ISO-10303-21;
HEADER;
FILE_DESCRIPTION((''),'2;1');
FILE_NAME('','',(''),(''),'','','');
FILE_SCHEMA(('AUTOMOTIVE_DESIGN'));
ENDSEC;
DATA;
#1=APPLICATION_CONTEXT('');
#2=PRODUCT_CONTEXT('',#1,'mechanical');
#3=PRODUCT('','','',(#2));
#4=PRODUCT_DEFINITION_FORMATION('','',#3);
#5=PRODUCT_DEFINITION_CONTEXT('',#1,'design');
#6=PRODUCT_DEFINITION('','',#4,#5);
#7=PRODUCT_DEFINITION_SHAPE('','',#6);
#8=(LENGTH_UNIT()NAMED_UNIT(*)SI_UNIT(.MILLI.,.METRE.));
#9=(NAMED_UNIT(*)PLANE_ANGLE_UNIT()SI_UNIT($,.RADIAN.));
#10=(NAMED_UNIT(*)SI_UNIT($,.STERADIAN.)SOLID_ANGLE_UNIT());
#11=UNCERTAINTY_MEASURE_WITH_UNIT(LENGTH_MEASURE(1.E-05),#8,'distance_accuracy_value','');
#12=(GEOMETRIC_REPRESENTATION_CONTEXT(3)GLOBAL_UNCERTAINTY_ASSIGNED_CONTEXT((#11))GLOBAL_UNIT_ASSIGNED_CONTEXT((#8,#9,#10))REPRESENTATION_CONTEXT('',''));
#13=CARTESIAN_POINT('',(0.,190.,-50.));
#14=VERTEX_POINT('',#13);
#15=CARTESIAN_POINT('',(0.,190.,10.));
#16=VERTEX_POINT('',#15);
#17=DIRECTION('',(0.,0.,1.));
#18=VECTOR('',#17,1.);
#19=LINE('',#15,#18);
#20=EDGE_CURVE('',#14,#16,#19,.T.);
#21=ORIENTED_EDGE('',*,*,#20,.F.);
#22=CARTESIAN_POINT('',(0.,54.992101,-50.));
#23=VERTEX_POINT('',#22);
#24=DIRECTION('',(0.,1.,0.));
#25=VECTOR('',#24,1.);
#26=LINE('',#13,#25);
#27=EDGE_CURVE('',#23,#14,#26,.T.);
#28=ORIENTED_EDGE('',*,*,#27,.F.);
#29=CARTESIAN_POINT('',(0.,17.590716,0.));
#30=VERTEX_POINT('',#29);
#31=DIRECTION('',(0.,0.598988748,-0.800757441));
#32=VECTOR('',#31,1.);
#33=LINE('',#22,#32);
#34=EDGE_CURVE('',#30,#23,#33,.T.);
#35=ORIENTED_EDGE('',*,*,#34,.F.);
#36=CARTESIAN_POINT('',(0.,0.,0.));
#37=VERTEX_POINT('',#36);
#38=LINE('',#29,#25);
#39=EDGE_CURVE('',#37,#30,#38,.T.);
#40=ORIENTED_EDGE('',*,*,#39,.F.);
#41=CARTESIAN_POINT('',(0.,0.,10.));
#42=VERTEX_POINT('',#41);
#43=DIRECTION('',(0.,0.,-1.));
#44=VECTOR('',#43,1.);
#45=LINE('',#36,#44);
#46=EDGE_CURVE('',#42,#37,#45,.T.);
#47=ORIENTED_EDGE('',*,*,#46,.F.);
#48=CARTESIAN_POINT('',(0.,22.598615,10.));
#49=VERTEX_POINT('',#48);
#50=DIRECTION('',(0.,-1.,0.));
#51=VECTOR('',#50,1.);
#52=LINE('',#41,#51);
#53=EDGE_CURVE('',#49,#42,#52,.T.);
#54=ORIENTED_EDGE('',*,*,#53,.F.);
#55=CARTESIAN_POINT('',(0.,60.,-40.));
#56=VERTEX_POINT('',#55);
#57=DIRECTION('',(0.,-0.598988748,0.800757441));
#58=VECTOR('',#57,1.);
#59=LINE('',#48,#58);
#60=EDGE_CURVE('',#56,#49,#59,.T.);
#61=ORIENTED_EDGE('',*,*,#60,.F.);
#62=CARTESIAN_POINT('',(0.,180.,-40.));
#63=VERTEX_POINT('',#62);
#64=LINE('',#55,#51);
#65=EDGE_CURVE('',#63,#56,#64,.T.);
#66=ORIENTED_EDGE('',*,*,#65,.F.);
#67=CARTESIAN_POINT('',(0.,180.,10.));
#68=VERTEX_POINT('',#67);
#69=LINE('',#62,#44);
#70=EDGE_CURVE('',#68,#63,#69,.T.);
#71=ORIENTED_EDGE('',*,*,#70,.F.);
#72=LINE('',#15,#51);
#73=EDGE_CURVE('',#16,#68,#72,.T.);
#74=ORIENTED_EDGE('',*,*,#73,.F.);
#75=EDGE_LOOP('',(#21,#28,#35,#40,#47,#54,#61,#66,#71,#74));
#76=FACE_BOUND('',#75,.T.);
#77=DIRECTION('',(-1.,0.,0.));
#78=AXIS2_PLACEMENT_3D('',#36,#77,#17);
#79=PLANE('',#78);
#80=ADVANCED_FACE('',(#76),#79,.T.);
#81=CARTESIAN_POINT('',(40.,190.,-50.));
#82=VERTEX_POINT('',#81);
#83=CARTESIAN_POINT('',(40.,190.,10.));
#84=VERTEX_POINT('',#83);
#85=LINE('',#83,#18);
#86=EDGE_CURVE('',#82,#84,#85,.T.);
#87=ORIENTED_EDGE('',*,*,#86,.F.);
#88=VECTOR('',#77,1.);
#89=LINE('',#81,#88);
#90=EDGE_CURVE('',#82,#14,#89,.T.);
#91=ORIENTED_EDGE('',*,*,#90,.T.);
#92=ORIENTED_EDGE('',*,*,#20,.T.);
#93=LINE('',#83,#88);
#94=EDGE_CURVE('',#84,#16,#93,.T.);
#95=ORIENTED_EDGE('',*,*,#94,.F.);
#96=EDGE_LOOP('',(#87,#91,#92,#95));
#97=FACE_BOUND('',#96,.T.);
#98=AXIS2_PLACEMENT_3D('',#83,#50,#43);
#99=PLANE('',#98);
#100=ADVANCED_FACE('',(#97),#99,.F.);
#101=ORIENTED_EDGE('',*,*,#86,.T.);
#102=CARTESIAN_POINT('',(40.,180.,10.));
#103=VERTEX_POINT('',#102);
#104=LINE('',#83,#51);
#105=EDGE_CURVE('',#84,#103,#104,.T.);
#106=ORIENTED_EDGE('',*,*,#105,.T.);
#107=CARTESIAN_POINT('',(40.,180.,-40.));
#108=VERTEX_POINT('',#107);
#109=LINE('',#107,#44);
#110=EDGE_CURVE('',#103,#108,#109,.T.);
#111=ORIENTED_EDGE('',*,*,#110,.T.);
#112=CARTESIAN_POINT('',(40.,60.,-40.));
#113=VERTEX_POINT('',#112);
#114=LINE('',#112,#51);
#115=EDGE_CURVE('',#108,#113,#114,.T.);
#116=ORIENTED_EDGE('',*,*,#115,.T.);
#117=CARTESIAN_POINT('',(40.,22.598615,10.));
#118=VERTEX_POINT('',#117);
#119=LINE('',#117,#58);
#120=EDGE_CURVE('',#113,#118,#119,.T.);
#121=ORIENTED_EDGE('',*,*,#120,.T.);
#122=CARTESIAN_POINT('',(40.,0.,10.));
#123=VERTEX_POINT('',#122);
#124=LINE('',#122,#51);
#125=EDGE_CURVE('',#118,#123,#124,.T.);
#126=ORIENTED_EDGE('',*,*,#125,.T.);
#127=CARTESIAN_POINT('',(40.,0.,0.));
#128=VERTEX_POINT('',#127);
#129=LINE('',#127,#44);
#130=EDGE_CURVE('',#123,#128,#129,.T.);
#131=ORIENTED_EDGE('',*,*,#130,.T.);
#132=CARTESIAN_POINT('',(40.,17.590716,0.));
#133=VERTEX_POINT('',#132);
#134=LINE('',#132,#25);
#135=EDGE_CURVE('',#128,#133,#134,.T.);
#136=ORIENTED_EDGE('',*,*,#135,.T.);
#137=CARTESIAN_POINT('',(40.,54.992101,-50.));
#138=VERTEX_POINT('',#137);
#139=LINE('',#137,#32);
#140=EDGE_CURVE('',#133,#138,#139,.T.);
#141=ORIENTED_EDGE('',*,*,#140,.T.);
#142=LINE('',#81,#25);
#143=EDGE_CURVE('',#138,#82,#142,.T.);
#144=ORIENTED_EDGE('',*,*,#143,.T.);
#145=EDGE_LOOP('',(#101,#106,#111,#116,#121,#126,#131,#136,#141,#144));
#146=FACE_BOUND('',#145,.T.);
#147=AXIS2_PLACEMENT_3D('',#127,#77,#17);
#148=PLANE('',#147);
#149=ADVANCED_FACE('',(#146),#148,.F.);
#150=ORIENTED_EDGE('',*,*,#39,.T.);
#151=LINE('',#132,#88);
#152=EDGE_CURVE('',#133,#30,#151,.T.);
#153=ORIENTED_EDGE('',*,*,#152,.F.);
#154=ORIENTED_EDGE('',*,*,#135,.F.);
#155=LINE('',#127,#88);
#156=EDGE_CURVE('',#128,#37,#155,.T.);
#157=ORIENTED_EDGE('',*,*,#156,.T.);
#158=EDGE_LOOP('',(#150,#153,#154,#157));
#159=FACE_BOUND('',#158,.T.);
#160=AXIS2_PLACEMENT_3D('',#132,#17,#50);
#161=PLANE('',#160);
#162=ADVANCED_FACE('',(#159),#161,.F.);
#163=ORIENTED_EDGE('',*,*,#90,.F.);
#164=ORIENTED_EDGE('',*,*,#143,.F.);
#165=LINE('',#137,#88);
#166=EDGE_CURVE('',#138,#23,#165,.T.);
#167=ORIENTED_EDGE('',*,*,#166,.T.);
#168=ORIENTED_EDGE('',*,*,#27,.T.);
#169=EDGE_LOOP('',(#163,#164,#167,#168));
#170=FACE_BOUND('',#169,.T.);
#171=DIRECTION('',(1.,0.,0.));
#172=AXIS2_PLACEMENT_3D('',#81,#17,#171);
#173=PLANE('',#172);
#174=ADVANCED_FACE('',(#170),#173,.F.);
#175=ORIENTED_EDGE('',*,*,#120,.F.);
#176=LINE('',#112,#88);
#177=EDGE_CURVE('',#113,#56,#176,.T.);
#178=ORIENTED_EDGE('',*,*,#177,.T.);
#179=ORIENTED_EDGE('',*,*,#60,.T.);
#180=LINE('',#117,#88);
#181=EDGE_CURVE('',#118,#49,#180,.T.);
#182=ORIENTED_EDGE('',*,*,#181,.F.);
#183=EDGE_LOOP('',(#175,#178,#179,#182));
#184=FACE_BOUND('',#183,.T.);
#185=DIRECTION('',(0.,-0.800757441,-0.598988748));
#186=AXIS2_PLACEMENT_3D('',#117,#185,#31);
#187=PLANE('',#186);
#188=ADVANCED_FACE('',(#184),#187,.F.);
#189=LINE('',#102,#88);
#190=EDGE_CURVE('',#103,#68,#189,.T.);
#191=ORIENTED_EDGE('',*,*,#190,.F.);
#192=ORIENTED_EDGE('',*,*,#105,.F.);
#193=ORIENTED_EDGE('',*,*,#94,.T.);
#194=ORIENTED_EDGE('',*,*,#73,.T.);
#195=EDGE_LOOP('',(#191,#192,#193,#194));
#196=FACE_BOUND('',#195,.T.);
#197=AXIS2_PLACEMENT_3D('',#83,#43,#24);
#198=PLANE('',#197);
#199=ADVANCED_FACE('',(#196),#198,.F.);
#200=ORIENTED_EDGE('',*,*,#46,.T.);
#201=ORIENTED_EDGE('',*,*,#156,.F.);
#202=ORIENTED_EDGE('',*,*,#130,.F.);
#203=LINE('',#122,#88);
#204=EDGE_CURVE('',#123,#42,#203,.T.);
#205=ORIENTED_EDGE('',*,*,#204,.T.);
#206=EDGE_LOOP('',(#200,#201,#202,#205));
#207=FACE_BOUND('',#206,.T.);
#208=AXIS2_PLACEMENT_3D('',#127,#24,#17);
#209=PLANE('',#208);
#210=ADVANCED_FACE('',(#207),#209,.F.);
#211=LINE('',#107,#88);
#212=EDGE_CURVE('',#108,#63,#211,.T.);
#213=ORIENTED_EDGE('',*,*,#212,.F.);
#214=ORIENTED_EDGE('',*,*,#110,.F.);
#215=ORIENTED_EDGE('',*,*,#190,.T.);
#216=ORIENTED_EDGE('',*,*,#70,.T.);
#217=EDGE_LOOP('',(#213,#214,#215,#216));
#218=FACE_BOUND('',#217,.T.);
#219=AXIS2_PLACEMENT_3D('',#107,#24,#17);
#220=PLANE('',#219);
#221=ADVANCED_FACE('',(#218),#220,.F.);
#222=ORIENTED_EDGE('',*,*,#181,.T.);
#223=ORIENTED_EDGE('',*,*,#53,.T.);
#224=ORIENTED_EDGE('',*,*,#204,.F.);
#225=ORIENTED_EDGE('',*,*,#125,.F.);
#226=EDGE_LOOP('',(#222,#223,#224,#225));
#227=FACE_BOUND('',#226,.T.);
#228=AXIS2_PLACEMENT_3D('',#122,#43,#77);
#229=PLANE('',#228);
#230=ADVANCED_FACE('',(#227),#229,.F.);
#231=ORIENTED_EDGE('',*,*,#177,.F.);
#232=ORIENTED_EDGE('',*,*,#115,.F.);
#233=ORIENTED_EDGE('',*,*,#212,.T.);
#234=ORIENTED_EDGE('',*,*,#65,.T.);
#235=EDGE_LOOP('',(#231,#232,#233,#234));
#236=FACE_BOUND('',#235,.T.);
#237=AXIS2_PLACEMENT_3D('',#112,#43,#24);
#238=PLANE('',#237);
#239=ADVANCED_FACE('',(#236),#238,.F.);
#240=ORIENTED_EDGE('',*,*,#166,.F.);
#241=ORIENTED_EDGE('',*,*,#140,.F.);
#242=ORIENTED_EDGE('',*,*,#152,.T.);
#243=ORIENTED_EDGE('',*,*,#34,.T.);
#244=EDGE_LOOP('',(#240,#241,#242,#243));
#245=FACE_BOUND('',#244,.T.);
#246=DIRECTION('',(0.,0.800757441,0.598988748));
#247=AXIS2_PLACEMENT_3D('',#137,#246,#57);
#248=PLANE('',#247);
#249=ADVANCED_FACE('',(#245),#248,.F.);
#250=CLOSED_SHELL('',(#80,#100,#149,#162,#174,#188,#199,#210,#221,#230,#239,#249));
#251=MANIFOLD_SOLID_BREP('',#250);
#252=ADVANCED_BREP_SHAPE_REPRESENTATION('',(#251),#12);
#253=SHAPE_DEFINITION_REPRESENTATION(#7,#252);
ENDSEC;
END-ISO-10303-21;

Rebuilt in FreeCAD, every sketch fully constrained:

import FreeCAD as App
import Part
import Sketcher
from FreeCAD import Vector

doc = App.newDocument("Part")
params = doc.addObject("Spreadsheet::Sheet", "Params")
for row, (alias, value) in enumerate([
    ("sketch1_width", "10 mm"),
    ("sketch1_width2", "120 mm"),
    ("sketch1_height", "60 mm"),
    ("pad1_length", "40 mm"),
], start=1):
    params.set(f"A{row}", alias)
    params.set(f"B{row}", "=" + value)
    params.setAlias(f"B{row}", alias)

body = doc.addObject("PartDesign::Body", "Body")

sketch1 = body.newObject("Sketcher::SketchObject", "Sketch")
sketch1.AttachmentSupport = (doc.getObject("YZ_Plane"), [""])
sketch1.MapMode = "FlatFace"
sketch1.addGeometry([
    Part.LineSegment(Vector(190, -50, 0), Vector(190, 10, 0)),
    Part.LineSegment(Vector(190, 10, 0), Vector(180, 10, 0)),
    Part.LineSegment(Vector(180, 10, 0), Vector(180, -40, 0)),
    Part.LineSegment(Vector(180, -40, 0), Vector(60, -40, 0)),
    Part.LineSegment(Vector(60, -40, 0), Vector(23, 10, 0)),
    Part.LineSegment(Vector(23, 10, 0), Vector(0, 10, 0)),
    Part.LineSegment(Vector(0, 10, 0), Vector(0, 0, 0)),
    Part.LineSegment(Vector(0, 0, 0), Vector(18, 0, 0)),
    Part.LineSegment(Vector(18, 0, 0), Vector(55, -50, 0)),
    Part.LineSegment(Vector(55, -50, 0), Vector(190, -50, 0)),
], False)
sketch1.addConstraint([
    Sketcher.Constraint("Coincident", 0, 2, 1, 1),
    Sketcher.Constraint("Coincident", 1, 2, 2, 1),
    Sketcher.Constraint("Coincident", 2, 2, 3, 1),
    Sketcher.Constraint("Coincident", 3, 2, 4, 1),
    Sketcher.Constraint("Coincident", 4, 2, 5, 1),
    Sketcher.Constraint("Coincident", 5, 2, 6, 1),
    Sketcher.Constraint("Coincident", 6, 2, 7, 1),
    Sketcher.Constraint("Coincident", 7, 2, 8, 1),
    Sketcher.Constraint("Coincident", 8, 2, 9, 1),
    Sketcher.Constraint("Coincident", 9, 2, 0, 1),
    Sketcher.Constraint("Vertical", 0),
    Sketcher.Constraint("Horizontal", 1),
    Sketcher.Constraint("Vertical", 2),
    Sketcher.Constraint("Horizontal", 3),
    Sketcher.Constraint("Horizontal", 5),
    Sketcher.Constraint("Vertical", 6),
    Sketcher.Constraint("Horizontal", 7),
    Sketcher.Constraint("Horizontal", 9),
    Sketcher.Constraint("Coincident", 6, 2, -1, 1),
    Sketcher.Constraint("Parallel", 4, 8),
    Sketcher.Constraint("Horizontal", 1, 2, 4, 2),
    Sketcher.Constraint("Equal", 1, 6),
    Sketcher.Constraint("Equal", 4, 8),
    Sketcher.Constraint("DistanceX", 1, 2, 1, 1, 10.0),
    Sketcher.Constraint("DistanceX", 3, 2, 3, 1, 120.0),
    Sketcher.Constraint("DistanceY", 0, 1, 0, 2, 60.0),
    Sketcher.Constraint("DistanceX", -1, 1, 0, 2, 190.0),
    Sketcher.Constraint("DistanceX", 9, 1, 9, 2, 135.007899),
    Sketcher.Constraint("Distance", 4, 62.440881),
])
sketch1.setExpression("Constraints[23]", "Params.sketch1_width")
sketch1.setExpression("Constraints[24]", "Params.sketch1_width2")
sketch1.setExpression("Constraints[25]", "Params.sketch1_height")
pad1 = body.newObject("PartDesign::Pad", "Pad")
pad1.Profile = sketch1
pad1.setExpression("Length", "Params.pad1_length")

doc.recompute()
